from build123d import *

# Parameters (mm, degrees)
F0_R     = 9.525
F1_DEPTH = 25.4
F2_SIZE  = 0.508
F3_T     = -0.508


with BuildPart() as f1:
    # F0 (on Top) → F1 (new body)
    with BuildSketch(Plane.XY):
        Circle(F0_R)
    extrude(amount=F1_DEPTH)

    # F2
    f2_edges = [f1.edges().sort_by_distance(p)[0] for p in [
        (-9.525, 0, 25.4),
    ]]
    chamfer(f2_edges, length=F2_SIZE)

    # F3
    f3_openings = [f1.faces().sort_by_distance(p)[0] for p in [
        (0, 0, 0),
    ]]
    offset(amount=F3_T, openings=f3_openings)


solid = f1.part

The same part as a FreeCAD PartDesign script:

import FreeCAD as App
import Part
import Sketcher
Q = App.Units.Quantity


def edges_at(feature, points):
    """Names of the edges that pass closest to the given points."""
    edges = feature.Shape.Edges
    near = lambda p: min(range(len(edges)), key=lambda i: edges[i].distToShape(Part.Vertex(*p))[0])
    return sorted({f"Edge{near(p) + 1}" for p in points})


def faces_at(feature, points):
    """Names of the faces that lie closest to the given points."""
    faces = feature.Shape.Faces
    near = lambda p: min(range(len(faces)), key=lambda i: faces[i].distToShape(Part.Vertex(*p))[0])
    return sorted({f"Face{near(p) + 1}" for p in points})

doc = App.newDocument("Part")
params = doc.addObject("Spreadsheet::Sheet", "Params")
for row, (alias, value) in enumerate([
    ("sketch1_diameter", "0.75 in"),
    ("pad1_length", "1 in"),
    ("chamfer_size", "0.02 in"),
    ("thickness_wall", "0.02 in"),
], start=1):
    params.set(f"A{row}", alias)
    params.set(f"B{row}", "=" + value)
    params.setAlias(f"B{row}", alias)

body = doc.addObject("PartDesign::Body", "Body")

# Sketch on XY plane
sketch1 = body.newObject("Sketcher::SketchObject", "Sketch")
sketch1.AttachmentSupport = (doc.getObject("XY_Plane"), [""])
sketch1.MapMode = "FlatFace"
sketch1.addGeometry(Part.Circle(App.Vector(0, 0, 0), App.Vector(0, 0, 1), 10), False)
sketch1.addConstraint([
    Sketcher.Constraint("Coincident", 0, 3, -1, 1),
    Sketcher.Constraint("Diameter", 0, Q("0.75 in")),
])
sketch1.setExpression("Constraints[1]", "Params.sketch1_diameter")
pad1 = body.newObject("PartDesign::Pad", "Pad")
pad1.Profile = sketch1
pad1.setExpression("Length", "Params.pad1_length")
doc.recompute()

chamfer = body.newObject("PartDesign::Chamfer", "Chamfer")
chamfer.Base = (pad1, edges_at(pad1, [(-9.525, 0, 25.4)]))
chamfer.setExpression("Size", "Params.chamfer_size")
doc.recompute()

thickness = body.newObject("PartDesign::Thickness", "Thickness")
thickness.Base = (chamfer, faces_at(chamfer, [(0, 0, 0)]))
thickness.setExpression("Value", "Params.thickness_wall")
thickness.Reversed = True
thickness.Join = "Arc"

doc.recompute()
